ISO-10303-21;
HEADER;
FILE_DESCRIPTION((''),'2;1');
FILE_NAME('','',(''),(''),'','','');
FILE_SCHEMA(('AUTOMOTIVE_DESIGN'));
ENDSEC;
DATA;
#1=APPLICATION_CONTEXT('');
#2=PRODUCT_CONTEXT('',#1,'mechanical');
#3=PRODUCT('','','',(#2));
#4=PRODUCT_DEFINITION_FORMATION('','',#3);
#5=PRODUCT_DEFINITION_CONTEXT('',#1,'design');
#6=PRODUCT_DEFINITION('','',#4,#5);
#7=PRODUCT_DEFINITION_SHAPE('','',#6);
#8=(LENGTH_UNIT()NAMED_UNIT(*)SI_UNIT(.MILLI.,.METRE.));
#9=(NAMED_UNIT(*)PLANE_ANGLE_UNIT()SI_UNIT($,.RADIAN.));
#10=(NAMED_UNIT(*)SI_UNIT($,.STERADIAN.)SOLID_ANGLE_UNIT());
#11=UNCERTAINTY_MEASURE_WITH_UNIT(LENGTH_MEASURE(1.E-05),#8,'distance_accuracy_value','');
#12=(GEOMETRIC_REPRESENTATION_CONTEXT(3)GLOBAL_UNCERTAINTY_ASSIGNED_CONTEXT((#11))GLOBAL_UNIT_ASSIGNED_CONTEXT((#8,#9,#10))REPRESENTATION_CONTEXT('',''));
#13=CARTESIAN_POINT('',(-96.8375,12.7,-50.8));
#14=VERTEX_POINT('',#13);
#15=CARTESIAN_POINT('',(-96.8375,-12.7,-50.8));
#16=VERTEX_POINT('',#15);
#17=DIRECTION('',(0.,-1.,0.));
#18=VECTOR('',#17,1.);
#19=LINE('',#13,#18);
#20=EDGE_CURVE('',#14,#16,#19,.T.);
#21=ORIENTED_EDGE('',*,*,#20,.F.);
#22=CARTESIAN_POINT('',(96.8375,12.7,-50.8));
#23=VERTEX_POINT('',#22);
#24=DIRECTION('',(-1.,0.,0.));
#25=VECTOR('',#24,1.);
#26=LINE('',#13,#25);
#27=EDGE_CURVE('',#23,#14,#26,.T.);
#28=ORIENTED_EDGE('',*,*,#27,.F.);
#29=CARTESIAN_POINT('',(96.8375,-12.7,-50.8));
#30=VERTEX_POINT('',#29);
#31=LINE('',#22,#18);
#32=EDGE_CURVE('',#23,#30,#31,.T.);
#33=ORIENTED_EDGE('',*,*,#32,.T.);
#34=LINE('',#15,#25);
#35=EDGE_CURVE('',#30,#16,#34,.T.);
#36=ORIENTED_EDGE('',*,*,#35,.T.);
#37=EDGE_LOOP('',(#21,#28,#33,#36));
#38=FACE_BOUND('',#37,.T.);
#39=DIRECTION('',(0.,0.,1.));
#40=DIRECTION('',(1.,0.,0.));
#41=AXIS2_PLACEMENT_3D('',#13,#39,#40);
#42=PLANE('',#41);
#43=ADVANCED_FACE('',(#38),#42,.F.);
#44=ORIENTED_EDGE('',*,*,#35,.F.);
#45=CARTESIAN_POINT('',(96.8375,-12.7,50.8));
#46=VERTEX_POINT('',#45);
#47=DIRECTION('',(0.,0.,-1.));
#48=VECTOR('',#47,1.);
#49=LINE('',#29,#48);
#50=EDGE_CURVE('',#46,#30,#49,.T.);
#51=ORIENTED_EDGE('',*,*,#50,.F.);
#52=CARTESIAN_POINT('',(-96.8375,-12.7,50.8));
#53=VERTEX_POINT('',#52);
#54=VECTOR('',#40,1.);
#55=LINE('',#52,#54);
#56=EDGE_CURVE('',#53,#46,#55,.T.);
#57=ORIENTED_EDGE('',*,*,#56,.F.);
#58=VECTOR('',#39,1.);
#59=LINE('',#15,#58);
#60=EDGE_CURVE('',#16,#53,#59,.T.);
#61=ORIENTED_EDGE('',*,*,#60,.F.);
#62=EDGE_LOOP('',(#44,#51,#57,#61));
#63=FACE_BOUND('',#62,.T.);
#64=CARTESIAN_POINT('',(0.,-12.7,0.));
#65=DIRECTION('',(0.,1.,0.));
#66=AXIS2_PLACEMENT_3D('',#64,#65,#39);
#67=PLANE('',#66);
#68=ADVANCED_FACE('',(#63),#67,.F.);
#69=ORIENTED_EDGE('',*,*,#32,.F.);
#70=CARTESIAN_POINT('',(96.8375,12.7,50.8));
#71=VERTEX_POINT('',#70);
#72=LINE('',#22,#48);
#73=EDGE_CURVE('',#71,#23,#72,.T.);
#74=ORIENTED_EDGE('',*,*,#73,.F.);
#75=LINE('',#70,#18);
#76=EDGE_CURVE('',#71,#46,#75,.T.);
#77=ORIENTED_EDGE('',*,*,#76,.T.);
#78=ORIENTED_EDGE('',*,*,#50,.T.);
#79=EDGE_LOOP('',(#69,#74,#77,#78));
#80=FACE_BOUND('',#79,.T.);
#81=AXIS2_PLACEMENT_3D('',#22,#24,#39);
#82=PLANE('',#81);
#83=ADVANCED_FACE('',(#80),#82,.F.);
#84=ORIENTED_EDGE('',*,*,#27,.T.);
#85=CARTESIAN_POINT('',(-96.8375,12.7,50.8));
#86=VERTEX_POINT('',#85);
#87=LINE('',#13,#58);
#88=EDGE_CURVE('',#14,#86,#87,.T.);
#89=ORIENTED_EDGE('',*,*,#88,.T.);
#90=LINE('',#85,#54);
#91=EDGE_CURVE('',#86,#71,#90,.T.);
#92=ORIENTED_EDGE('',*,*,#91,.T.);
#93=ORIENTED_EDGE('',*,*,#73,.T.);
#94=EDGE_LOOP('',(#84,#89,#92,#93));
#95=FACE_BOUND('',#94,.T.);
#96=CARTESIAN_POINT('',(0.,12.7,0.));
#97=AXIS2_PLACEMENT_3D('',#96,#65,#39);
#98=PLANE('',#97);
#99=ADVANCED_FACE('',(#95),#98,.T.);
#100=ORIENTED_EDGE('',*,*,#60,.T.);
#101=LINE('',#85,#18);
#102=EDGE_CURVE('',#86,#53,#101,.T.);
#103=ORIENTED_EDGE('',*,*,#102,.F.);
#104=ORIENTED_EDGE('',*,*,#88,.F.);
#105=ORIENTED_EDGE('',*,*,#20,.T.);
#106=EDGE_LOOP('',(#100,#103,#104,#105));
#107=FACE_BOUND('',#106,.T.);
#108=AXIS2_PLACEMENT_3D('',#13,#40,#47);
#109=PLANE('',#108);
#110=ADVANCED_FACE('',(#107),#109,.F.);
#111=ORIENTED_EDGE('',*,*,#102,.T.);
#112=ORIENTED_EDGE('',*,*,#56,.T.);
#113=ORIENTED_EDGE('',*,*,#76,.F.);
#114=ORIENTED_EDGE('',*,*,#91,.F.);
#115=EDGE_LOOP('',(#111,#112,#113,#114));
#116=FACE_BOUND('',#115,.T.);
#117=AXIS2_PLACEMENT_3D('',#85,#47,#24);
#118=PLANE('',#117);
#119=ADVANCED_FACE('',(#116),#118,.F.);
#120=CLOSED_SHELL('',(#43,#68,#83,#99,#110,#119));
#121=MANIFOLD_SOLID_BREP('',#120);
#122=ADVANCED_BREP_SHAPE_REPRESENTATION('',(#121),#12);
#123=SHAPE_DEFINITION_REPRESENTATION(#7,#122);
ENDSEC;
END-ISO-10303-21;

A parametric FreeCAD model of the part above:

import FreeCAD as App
import Part
import Sketcher
from FreeCAD import Vector
Q = App.Units.Quantity


def add_polygon(sketch, points):
    """Adds a closed chain of lines whose ends are joined by coincident constraints."""
    first, n = sketch.GeometryCount, len(points)
    for a, b in zip(points, points[1:] + points[:1]):
        sketch.addGeometry(Part.LineSegment(App.Vector(*a, 0), App.Vector(*b, 0)), False)
    for i in range(n):
        sketch.addConstraint(Sketcher.Constraint("Coincident", first + i, 2, first + (i + 1) % n, 1))

doc = App.newDocument("Part")
body = doc.addObject("PartDesign::Body", "Body")

# Sketch on XZ plane
sketch1 = body.newObject("Sketcher::SketchObject", "Sketch")
sketch1.AttachmentSupport = (doc.getObject("XZ_Plane"), [""])
sketch1.MapMode = "FlatFace"
add_polygon(sketch1, [(-97, -51), (-97, 51), (97, 51), (97, -51)])  # lines 0-3
sketch1.addConstraint(Sketcher.Constraint("Vertical", 0))
sketch1.addConstraint(Sketcher.Constraint("Horizontal", 1))
sketch1.addConstraint(Sketcher.Constraint("Vertical", 2))
sketch1.addConstraint(Sketcher.Constraint("Horizontal", 3))
sketch1.addConstraint(Sketcher.Constraint("Symmetric", 0, 2, 2, 2, -1, 1))
sketch1.addConstraint(Sketcher.Constraint("DistanceY", 0, 1, 0, 2, Q("4 in")))
sketch1.addConstraint(Sketcher.Constraint("DistanceX", 1, 1, 1, 2, Q("7.625 in")))
pad1 = body.newObject("PartDesign::Pad", "Pad")
pad1.Profile = sketch1
pad1.Length = Q("1 in")
pad1.Midplane = True

doc.recompute()
